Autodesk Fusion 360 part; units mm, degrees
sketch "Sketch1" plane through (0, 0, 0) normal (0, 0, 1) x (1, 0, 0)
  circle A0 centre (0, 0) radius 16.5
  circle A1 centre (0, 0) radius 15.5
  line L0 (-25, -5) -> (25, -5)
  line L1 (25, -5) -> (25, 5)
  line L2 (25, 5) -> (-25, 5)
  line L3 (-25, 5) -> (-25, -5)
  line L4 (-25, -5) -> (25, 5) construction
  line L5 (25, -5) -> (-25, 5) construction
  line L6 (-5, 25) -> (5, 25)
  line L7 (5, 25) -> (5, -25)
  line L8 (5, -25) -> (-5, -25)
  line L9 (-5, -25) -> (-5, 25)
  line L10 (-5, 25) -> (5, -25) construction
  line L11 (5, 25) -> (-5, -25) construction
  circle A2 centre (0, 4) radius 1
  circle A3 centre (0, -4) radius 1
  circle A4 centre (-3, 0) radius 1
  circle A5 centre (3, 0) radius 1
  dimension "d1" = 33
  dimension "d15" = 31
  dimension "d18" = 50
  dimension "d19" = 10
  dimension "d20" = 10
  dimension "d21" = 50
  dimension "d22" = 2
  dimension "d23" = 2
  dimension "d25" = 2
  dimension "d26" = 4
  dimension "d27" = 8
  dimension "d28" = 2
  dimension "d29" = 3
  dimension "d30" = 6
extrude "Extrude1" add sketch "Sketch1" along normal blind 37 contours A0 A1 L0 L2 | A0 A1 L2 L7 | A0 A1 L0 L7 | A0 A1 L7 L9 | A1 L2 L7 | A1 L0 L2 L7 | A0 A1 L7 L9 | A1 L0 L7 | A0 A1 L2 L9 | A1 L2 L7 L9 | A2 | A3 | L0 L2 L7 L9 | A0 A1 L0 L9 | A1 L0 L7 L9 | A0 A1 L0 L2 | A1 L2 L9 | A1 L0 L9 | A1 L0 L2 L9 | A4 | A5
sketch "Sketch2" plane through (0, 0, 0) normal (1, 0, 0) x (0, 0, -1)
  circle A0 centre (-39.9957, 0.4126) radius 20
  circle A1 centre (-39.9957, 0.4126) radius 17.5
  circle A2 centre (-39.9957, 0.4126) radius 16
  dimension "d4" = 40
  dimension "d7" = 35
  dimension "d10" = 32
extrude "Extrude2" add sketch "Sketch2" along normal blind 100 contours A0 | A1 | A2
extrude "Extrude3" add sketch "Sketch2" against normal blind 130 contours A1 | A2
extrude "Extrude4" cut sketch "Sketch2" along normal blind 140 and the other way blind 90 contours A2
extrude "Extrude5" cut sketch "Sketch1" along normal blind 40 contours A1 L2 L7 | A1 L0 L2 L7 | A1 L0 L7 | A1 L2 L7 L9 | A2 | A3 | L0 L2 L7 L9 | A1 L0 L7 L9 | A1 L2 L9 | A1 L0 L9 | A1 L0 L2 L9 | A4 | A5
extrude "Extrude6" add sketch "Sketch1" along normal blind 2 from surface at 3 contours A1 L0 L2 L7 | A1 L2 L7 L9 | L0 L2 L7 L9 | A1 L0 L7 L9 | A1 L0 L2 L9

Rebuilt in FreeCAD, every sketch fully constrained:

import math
import FreeCAD as App
import Part
import Sketcher
from FreeCAD import Vector

doc = App.newDocument("Part")
body = doc.addObject("PartDesign::Body", "Body")

# Sketch on XY plane
sketch1 = body.newObject("Sketcher::SketchObject", "Sketch")
sketch1.AttachmentSupport = (doc.getObject("XY_Plane"), [""])
sketch1.MapMode = "FlatFace"
sketch1.addGeometry(Part.Circle(Vector(0, 0, 0), Vector(0, 0, 1), 16), False)
sketch1.addConstraint([
    Sketcher.Constraint("Coincident", 0, 3, -1, 1),
    Sketcher.Constraint("Diameter", 0, 33.0),
])
pad1 = body.newObject("PartDesign::Pad", "Pad")
pad1.Profile = sketch1
pad1.Length = 37

# Sketch on YZ plane
sketch2 = body.newObject("Sketcher::SketchObject", "Sketch001")
sketch2.AttachmentSupport = (doc.getObject("YZ_Plane"), [""])
sketch2.MapMode = "FlatFace"
sketch2.addGeometry(Part.Circle(Vector(0, 40, 0), Vector(0, 0, 1), 20), False)
sketch2.addConstraint([
    Sketcher.Constraint("Diameter", 0, 40.0),
    Sketcher.Constraint("DistanceX", -1, 1, 0, 3, 0.4126),
    Sketcher.Constraint("DistanceY", -1, 1, 0, 3, 39.9957),
])
pad2 = body.newObject("PartDesign::Pad", "Pad001")
pad2.Profile = sketch2
pad2.Length = 100

# Sketch on YZ plane
sketch3 = body.newObject("Sketcher::SketchObject", "Sketch002")
sketch3.AttachmentSupport = (doc.getObject("YZ_Plane"), [""])
sketch3.MapMode = "FlatFace"
sketch3.addGeometry(Part.Circle(Vector(0, 40, 0), Vector(0, 0, 1), 18), False)
sketch3.addConstraint([
    Sketcher.Constraint("Diameter", 0, 35.0),
    Sketcher.Constraint("DistanceX", -1, 1, 0, 3, 0.4126),
    Sketcher.Constraint("DistanceY", -1, 1, 0, 3, 39.9957),
])
pad3 = body.newObject("PartDesign::Pad", "Pad002")
pad3.Profile = sketch3
pad3.Length = 130
pad3.Reversed = True

# Sketch on YZ plane
sketch4 = body.newObject("Sketcher::SketchObject", "Sketch003")
sketch4.AttachmentSupport = (doc.getObject("YZ_Plane"), [""])
sketch4.MapMode = "FlatFace"
sketch4.addGeometry(Part.Circle(Vector(0, 40, 0), Vector(0, 0, 1), 16), False)
sketch4.addConstraint([
    Sketcher.Constraint("Diameter", 0, 32.0),
    Sketcher.Constraint("DistanceX", -1, 1, 0, 3, 0.4126),
    Sketcher.Constraint("DistanceY", -1, 1, 0, 3, 39.9957),
])
pocket1 = body.newObject("PartDesign::Pocket", "Pocket")
pocket1.Profile = sketch4
pocket1.Type = "TwoLengths"
pocket1.Length = 140
pocket1.Length2 = 90
pocket1.Reversed = True

# Sketch on XY plane
sketch5 = body.newObject("Sketcher::SketchObject", "Sketch004")
sketch5.AttachmentSupport = (doc.getObject("XY_Plane"), [""])
sketch5.MapMode = "FlatFace"
sketch5.addGeometry(Part.Circle(Vector(0, 0, 0), Vector(0, 0, 1), 16), False)
sketch5.addConstraint([
    Sketcher.Constraint("Coincident", 0, 3, -1, 1),
    Sketcher.Constraint("Diameter", 0, 31.0),
])
pocket2 = body.newObject("PartDesign::Pocket", "Pocket001")
pocket2.Profile = sketch5
pocket2.Length = 40
pocket2.Reversed = True

# Sketch on XY plane
sketch6 = body.newObject("Sketcher::SketchObject", "Sketch005")
sketch6.AttachmentSupport = (doc.getObject("XY_Plane"), [""])
sketch6.MapMode = "FlatFace"
sketch6.AttachmentOffset = App.Placement(Vector(0, 0, 3), App.Rotation())
sketch6.addGeometry([
    Part.LineSegment(Vector(14.7, 5, 0), Vector(5, 5, 0)),  # 0
    Part.LineSegment(Vector(5, 5, 0), Vector(5, 14.7, 0)),  # 1
    Part.ArcOfCircle(Part.Circle(Vector(0, 0, 0), Vector(0, 0, 1), 15.5), math.radians(71), math.radians(109)),  # 2
    Part.LineSegment(Vector(-5, 14.7, 0), Vector(-5, 5, 0)),  # 3
    Part.LineSegment(Vector(-5, 5, 0), Vector(-14.7, 5, 0)),  # 4
    Part.ArcOfCircle(Part.Circle(Vector(0, 0, 0), Vector(0, 0, 1), 15.5), math.radians(161), math.radians(199)),  # 5
    Part.LineSegment(Vector(-14.7, -5, 0), Vector(-5, -5, 0)),  # 6
    Part.LineSegment(Vector(-5, -5, 0), Vector(-5, -14.7, 0)),  # 7
    Part.ArcOfCircle(Part.Circle(Vector(0, 0, 0), Vector(0, 0, 1), 15.5), math.radians(-109), math.radians(-71)),  # 8
    Part.LineSegment(Vector(5, -14.7, 0), Vector(5, -5, 0)),  # 9
    Part.LineSegment(Vector(5, -5, 0), Vector(14.7, -5, 0)),  # 10
    Part.ArcOfCircle(Part.Circle(Vector(0, 0, 0), Vector(0, 0, 1), 15.5), math.radians(-19), math.radians(19)),  # 11
    Part.Circle(Vector(0, 4, 0), Vector(0, 0, 1), 1),  # 12
    Part.Circle(Vector(0, -4, 0), Vector(0, 0, 1), 1),  # 13
    Part.Circle(Vector(-3, 0, 0), Vector(0, 0, 1), 1),  # 14
    Part.Circle(Vector(3, 0, 0), Vector(0, 0, 1), 1),  # 15
], False)
sketch6.addConstraint([
    Sketcher.Constraint("Coincident", 0, 2, 1, 1),
    Sketcher.Constraint("Coincident", 1, 2, 2, 1),
    Sketcher.Constraint("Coincident", 2, 2, 3, 1),
    Sketcher.Constraint("Coincident", 3, 2, 4, 1),
    Sketcher.Constraint("Coincident", 4, 2, 5, 1),
    Sketcher.Constraint("Coincident", 5, 2, 6, 1),
    Sketcher.Constraint("Coincident", 6, 2, 7, 1),
    Sketcher.Constraint("Coincident", 7, 2, 8, 1),
    Sketcher.Constraint("Coincident", 8, 2, 9, 1),
    Sketcher.Constraint("Coincident", 9, 2, 10, 1),
    Sketcher.Constraint("Coincident", 10, 2, 11, 1),
    Sketcher.Constraint("Coincident", 11, 2, 0, 1),
    Sketcher.Constraint("Horizontal", 0),
    Sketcher.Constraint("Vertical", 1),
    Sketcher.Constraint("Vertical", 3),
    Sketcher.Constraint("Horizontal", 4),
    Sketcher.Constraint("Horizontal", 6),
    Sketcher.Constraint("Vertical", 7),
    Sketcher.Constraint("Vertical", 9),
    Sketcher.Constraint("Horizontal", 10),
    Sketcher.Constraint("Coincident", 2, 3, -1, 1),
    Sketcher.Constraint("Coincident", 5, 3, -1, 1),
    Sketcher.Constraint("Coincident", 8, 3, -1, 1),
    Sketcher.Constraint("Coincident", 11, 3, -1, 1),
    Sketcher.Constraint("Equal", 2, 5),
    Sketcher.Constraint("Equal", 5, 8),
    Sketcher.Constraint("Equal", 8, 11),
    Sketcher.Constraint("Equal", 12, 13),
    Sketcher.Constraint("Equal", 13, 14),
    Sketcher.Constraint("Equal", 14, 15),
    Sketcher.Constraint("Symmetric", 12, 3, 13, 3, -1, 1),
    Sketcher.Constraint("Symmetric", 14, 3, 15, 3, -1, 1),
    Sketcher.Constraint("Symmetric", 0, 2, 6, 2, -1, 1),
    Sketcher.Constraint("Symmetric", 3, 2, 9, 2, -1, 1),
    Sketcher.Constraint("Symmetric", 0, 2, 3, 2, -2),
    Sketcher.Constraint("PointOnObject", 12, 3, -2),
    Sketcher.Constraint("PointOnObject", 14, 3, -1),
    Sketcher.Constraint("Equal", 10, 1),
    Sketcher.Constraint("Diameter", 12, 2.0),
    Sketcher.Constraint("Radius", 2, 15.5),
    Sketcher.Constraint("DistanceY", -1, 1, 12, 3, 4.0),
    Sketcher.Constraint("DistanceX", 14, 3, -1, 1, 3.0),
    Sketcher.Constraint("DistanceX", 15, 3, 0, 2, 2.0),
])
pad4 = body.newObject("PartDesign::Pad", "Pad003")
pad4.Profile = sketch6
pad4.Length = 2

doc.recompute()
